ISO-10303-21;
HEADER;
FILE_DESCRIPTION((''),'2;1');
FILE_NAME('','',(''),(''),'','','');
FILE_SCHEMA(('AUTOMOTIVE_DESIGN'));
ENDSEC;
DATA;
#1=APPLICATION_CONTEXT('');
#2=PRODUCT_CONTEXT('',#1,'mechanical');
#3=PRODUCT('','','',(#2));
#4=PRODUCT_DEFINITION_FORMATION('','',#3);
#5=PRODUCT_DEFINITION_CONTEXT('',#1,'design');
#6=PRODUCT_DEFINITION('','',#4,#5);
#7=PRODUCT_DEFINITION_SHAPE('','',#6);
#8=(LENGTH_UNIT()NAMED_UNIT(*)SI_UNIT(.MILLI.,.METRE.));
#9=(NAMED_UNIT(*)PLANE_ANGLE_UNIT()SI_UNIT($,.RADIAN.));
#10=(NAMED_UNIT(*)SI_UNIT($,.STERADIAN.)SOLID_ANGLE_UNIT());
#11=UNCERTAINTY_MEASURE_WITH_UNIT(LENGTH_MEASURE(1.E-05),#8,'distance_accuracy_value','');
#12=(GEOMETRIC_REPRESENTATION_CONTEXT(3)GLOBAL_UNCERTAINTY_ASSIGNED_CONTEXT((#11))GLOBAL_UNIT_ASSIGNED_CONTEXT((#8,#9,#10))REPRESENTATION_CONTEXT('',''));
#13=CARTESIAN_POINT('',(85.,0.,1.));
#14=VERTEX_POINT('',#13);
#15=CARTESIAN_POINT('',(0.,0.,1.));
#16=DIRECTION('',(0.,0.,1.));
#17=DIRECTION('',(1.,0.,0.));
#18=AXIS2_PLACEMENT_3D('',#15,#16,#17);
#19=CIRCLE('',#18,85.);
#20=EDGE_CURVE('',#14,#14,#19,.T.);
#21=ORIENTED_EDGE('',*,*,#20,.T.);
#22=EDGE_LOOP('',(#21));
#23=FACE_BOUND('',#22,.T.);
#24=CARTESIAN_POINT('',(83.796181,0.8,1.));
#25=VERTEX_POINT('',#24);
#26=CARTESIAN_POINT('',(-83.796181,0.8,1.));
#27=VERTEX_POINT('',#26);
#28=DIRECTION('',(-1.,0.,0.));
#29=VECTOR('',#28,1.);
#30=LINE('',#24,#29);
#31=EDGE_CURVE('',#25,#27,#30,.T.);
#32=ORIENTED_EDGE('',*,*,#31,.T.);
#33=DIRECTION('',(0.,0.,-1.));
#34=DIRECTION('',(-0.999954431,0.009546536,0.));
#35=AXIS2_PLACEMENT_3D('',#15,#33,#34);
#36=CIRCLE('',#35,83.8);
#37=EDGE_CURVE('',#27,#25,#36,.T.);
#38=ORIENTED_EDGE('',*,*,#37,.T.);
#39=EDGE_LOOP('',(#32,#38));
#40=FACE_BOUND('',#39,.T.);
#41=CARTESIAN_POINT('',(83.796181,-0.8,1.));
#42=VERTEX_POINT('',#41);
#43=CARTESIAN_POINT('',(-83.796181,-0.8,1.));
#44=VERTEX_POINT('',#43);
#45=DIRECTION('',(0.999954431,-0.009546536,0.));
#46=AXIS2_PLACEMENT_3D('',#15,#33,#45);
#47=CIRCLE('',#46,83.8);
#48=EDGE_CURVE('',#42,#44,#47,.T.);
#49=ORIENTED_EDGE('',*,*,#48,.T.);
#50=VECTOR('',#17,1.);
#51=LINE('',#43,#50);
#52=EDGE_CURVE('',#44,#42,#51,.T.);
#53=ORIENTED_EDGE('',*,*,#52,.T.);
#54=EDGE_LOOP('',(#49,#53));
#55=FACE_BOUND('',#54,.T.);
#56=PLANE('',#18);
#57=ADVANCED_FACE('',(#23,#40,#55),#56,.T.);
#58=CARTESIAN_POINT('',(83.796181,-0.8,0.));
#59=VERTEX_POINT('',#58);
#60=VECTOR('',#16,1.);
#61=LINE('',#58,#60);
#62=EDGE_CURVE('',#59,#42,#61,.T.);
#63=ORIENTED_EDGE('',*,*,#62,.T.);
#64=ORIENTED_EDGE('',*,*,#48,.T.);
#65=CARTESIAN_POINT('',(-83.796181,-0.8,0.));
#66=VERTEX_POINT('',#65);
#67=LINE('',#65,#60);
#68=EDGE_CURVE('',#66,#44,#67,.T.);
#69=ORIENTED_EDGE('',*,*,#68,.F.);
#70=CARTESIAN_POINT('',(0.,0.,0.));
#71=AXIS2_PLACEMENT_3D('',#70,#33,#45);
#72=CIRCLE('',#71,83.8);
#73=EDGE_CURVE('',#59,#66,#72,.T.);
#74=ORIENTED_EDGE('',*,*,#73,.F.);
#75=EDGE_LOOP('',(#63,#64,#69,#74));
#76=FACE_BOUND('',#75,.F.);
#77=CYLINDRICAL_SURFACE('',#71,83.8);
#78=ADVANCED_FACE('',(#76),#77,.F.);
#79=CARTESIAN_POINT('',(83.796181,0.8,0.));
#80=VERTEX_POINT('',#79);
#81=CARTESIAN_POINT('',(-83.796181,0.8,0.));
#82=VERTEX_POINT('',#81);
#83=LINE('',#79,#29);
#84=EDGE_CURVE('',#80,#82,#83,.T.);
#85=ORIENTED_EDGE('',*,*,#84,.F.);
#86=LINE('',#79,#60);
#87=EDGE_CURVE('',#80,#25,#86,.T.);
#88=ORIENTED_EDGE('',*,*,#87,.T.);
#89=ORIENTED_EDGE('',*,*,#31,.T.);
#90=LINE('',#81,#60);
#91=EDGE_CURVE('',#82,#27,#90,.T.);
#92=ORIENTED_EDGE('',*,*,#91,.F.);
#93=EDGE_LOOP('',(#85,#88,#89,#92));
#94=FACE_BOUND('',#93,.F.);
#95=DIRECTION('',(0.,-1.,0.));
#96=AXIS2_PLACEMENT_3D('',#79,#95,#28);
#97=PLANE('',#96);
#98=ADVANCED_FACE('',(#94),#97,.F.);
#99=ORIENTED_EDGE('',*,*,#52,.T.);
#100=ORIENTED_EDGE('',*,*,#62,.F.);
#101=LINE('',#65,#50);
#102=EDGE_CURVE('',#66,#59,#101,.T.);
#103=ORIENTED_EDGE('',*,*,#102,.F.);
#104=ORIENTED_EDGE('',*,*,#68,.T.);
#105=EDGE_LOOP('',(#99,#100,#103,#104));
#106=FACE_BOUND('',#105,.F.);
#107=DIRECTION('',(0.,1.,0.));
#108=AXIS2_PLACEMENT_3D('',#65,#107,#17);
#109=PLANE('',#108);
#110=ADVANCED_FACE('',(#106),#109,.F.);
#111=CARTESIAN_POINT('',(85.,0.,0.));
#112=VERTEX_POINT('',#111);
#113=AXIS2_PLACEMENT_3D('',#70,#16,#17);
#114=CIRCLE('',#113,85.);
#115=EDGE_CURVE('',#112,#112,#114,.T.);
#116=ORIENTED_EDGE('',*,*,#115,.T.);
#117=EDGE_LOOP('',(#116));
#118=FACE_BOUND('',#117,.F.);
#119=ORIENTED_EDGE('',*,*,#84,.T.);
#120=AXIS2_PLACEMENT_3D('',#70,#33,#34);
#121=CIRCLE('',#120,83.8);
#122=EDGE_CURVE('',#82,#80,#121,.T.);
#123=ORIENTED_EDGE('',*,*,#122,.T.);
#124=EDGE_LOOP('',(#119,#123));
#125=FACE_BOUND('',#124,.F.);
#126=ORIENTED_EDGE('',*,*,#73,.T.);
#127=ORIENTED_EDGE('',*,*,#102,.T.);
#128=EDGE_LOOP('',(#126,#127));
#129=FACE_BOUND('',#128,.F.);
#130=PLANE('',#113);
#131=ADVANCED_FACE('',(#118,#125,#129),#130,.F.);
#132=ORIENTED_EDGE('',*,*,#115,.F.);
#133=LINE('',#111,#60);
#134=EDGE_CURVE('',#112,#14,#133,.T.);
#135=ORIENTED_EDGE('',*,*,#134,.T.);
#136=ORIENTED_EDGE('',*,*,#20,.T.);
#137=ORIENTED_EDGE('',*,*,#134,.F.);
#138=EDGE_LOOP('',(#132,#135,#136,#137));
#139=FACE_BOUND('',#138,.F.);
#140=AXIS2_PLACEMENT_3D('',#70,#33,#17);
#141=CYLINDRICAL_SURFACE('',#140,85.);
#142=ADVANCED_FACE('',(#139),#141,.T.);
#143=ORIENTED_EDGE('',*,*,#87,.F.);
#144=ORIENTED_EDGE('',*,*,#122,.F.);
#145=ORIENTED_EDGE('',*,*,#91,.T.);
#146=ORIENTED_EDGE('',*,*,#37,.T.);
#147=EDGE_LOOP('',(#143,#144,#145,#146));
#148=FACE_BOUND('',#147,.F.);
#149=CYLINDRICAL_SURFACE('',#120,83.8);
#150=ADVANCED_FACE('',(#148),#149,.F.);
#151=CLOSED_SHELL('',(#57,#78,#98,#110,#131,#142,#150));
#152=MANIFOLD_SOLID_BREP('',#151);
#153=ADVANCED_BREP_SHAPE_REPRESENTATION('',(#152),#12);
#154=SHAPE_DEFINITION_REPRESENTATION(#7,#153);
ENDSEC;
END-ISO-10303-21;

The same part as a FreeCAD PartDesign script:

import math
import FreeCAD as App
import Part
import Sketcher
Q = App.Units.Quantity

doc = App.newDocument("Part")
params = doc.addObject("Spreadsheet::Sheet", "Params")
for row, (alias, value) in enumerate([
    ("sketch1_diameter", "170 mm"),
    ("sketch1_radius", "83.8 mm"),
    ("pad1_length", "1 mm"),
], start=1):
    params.set(f"A{row}", alias)
    params.set(f"B{row}", "=" + value)
    params.setAlias(f"B{row}", alias)

body = doc.addObject("PartDesign::Body", "Body")

sketch1 = body.newObject("Sketcher::SketchObject", "Sketch")
sketch1.AttachmentSupport = (doc.getObject("XY_Plane"), [""])
sketch1.MapMode = "FlatFace"
sketch1.addGeometry([
    Part.Circle(App.Vector(0, 0, 0), App.Vector(0, 0, 1), 85),
    Part.LineSegment(App.Vector(-83.796181, -0.8, 0), App.Vector(83.796181, -0.8, 0)),
    Part.ArcOfCircle(Part.Circle(App.Vector(0, 0, 0), App.Vector(0, 0, 1), 83.8), math.radians(-179.453015), math.radians(-0.546985)),
    Part.ArcOfCircle(Part.Circle(App.Vector(0, 0, 0), App.Vector(0, 0, 1), 83.8), math.radians(0.546985), math.radians(179.453015)),
    Part.LineSegment(App.Vector(83.796181, 0.8, 0), App.Vector(-83.796181, 0.8, 0)),
], False)
sketch1.addConstraint([
    Sketcher.Constraint("Coincident", 1, 1, 2, 1),
    Sketcher.Constraint("Coincident", 2, 2, 1, 2),
    Sketcher.Constraint("Coincident", 3, 1, 4, 1),
    Sketcher.Constraint("Coincident", 4, 2, 3, 2),
    Sketcher.Constraint("Horizontal", 1),
    Sketcher.Constraint("Horizontal", 4),
    Sketcher.Constraint("Coincident", 0, 3, -1, 1),
    Sketcher.Constraint("Coincident", 2, 3, -1, 1),
    Sketcher.Constraint("Coincident", 3, 3, -1, 1),
    Sketcher.Constraint("Equal", 2, 3),
    Sketcher.Constraint("Vertical", 2, 2, 3, 1),
    Sketcher.Constraint("Diameter", 0, Q("170 mm")),
    Sketcher.Constraint("Radius", 2, Q("83.8 mm")),
    Sketcher.Constraint("DistanceY", 1, 1, -1, 1, Q("0.8 mm")),
])
sketch1.setExpression("Constraints[11]", "Params.sketch1_diameter")
sketch1.setExpression("Constraints[12]", "Params.sketch1_radius")
pad1 = body.newObject("PartDesign::Pad", "Pad")
pad1.Profile = sketch1
pad1.setExpression("Length", "Params.pad1_length")

doc.recompute()
